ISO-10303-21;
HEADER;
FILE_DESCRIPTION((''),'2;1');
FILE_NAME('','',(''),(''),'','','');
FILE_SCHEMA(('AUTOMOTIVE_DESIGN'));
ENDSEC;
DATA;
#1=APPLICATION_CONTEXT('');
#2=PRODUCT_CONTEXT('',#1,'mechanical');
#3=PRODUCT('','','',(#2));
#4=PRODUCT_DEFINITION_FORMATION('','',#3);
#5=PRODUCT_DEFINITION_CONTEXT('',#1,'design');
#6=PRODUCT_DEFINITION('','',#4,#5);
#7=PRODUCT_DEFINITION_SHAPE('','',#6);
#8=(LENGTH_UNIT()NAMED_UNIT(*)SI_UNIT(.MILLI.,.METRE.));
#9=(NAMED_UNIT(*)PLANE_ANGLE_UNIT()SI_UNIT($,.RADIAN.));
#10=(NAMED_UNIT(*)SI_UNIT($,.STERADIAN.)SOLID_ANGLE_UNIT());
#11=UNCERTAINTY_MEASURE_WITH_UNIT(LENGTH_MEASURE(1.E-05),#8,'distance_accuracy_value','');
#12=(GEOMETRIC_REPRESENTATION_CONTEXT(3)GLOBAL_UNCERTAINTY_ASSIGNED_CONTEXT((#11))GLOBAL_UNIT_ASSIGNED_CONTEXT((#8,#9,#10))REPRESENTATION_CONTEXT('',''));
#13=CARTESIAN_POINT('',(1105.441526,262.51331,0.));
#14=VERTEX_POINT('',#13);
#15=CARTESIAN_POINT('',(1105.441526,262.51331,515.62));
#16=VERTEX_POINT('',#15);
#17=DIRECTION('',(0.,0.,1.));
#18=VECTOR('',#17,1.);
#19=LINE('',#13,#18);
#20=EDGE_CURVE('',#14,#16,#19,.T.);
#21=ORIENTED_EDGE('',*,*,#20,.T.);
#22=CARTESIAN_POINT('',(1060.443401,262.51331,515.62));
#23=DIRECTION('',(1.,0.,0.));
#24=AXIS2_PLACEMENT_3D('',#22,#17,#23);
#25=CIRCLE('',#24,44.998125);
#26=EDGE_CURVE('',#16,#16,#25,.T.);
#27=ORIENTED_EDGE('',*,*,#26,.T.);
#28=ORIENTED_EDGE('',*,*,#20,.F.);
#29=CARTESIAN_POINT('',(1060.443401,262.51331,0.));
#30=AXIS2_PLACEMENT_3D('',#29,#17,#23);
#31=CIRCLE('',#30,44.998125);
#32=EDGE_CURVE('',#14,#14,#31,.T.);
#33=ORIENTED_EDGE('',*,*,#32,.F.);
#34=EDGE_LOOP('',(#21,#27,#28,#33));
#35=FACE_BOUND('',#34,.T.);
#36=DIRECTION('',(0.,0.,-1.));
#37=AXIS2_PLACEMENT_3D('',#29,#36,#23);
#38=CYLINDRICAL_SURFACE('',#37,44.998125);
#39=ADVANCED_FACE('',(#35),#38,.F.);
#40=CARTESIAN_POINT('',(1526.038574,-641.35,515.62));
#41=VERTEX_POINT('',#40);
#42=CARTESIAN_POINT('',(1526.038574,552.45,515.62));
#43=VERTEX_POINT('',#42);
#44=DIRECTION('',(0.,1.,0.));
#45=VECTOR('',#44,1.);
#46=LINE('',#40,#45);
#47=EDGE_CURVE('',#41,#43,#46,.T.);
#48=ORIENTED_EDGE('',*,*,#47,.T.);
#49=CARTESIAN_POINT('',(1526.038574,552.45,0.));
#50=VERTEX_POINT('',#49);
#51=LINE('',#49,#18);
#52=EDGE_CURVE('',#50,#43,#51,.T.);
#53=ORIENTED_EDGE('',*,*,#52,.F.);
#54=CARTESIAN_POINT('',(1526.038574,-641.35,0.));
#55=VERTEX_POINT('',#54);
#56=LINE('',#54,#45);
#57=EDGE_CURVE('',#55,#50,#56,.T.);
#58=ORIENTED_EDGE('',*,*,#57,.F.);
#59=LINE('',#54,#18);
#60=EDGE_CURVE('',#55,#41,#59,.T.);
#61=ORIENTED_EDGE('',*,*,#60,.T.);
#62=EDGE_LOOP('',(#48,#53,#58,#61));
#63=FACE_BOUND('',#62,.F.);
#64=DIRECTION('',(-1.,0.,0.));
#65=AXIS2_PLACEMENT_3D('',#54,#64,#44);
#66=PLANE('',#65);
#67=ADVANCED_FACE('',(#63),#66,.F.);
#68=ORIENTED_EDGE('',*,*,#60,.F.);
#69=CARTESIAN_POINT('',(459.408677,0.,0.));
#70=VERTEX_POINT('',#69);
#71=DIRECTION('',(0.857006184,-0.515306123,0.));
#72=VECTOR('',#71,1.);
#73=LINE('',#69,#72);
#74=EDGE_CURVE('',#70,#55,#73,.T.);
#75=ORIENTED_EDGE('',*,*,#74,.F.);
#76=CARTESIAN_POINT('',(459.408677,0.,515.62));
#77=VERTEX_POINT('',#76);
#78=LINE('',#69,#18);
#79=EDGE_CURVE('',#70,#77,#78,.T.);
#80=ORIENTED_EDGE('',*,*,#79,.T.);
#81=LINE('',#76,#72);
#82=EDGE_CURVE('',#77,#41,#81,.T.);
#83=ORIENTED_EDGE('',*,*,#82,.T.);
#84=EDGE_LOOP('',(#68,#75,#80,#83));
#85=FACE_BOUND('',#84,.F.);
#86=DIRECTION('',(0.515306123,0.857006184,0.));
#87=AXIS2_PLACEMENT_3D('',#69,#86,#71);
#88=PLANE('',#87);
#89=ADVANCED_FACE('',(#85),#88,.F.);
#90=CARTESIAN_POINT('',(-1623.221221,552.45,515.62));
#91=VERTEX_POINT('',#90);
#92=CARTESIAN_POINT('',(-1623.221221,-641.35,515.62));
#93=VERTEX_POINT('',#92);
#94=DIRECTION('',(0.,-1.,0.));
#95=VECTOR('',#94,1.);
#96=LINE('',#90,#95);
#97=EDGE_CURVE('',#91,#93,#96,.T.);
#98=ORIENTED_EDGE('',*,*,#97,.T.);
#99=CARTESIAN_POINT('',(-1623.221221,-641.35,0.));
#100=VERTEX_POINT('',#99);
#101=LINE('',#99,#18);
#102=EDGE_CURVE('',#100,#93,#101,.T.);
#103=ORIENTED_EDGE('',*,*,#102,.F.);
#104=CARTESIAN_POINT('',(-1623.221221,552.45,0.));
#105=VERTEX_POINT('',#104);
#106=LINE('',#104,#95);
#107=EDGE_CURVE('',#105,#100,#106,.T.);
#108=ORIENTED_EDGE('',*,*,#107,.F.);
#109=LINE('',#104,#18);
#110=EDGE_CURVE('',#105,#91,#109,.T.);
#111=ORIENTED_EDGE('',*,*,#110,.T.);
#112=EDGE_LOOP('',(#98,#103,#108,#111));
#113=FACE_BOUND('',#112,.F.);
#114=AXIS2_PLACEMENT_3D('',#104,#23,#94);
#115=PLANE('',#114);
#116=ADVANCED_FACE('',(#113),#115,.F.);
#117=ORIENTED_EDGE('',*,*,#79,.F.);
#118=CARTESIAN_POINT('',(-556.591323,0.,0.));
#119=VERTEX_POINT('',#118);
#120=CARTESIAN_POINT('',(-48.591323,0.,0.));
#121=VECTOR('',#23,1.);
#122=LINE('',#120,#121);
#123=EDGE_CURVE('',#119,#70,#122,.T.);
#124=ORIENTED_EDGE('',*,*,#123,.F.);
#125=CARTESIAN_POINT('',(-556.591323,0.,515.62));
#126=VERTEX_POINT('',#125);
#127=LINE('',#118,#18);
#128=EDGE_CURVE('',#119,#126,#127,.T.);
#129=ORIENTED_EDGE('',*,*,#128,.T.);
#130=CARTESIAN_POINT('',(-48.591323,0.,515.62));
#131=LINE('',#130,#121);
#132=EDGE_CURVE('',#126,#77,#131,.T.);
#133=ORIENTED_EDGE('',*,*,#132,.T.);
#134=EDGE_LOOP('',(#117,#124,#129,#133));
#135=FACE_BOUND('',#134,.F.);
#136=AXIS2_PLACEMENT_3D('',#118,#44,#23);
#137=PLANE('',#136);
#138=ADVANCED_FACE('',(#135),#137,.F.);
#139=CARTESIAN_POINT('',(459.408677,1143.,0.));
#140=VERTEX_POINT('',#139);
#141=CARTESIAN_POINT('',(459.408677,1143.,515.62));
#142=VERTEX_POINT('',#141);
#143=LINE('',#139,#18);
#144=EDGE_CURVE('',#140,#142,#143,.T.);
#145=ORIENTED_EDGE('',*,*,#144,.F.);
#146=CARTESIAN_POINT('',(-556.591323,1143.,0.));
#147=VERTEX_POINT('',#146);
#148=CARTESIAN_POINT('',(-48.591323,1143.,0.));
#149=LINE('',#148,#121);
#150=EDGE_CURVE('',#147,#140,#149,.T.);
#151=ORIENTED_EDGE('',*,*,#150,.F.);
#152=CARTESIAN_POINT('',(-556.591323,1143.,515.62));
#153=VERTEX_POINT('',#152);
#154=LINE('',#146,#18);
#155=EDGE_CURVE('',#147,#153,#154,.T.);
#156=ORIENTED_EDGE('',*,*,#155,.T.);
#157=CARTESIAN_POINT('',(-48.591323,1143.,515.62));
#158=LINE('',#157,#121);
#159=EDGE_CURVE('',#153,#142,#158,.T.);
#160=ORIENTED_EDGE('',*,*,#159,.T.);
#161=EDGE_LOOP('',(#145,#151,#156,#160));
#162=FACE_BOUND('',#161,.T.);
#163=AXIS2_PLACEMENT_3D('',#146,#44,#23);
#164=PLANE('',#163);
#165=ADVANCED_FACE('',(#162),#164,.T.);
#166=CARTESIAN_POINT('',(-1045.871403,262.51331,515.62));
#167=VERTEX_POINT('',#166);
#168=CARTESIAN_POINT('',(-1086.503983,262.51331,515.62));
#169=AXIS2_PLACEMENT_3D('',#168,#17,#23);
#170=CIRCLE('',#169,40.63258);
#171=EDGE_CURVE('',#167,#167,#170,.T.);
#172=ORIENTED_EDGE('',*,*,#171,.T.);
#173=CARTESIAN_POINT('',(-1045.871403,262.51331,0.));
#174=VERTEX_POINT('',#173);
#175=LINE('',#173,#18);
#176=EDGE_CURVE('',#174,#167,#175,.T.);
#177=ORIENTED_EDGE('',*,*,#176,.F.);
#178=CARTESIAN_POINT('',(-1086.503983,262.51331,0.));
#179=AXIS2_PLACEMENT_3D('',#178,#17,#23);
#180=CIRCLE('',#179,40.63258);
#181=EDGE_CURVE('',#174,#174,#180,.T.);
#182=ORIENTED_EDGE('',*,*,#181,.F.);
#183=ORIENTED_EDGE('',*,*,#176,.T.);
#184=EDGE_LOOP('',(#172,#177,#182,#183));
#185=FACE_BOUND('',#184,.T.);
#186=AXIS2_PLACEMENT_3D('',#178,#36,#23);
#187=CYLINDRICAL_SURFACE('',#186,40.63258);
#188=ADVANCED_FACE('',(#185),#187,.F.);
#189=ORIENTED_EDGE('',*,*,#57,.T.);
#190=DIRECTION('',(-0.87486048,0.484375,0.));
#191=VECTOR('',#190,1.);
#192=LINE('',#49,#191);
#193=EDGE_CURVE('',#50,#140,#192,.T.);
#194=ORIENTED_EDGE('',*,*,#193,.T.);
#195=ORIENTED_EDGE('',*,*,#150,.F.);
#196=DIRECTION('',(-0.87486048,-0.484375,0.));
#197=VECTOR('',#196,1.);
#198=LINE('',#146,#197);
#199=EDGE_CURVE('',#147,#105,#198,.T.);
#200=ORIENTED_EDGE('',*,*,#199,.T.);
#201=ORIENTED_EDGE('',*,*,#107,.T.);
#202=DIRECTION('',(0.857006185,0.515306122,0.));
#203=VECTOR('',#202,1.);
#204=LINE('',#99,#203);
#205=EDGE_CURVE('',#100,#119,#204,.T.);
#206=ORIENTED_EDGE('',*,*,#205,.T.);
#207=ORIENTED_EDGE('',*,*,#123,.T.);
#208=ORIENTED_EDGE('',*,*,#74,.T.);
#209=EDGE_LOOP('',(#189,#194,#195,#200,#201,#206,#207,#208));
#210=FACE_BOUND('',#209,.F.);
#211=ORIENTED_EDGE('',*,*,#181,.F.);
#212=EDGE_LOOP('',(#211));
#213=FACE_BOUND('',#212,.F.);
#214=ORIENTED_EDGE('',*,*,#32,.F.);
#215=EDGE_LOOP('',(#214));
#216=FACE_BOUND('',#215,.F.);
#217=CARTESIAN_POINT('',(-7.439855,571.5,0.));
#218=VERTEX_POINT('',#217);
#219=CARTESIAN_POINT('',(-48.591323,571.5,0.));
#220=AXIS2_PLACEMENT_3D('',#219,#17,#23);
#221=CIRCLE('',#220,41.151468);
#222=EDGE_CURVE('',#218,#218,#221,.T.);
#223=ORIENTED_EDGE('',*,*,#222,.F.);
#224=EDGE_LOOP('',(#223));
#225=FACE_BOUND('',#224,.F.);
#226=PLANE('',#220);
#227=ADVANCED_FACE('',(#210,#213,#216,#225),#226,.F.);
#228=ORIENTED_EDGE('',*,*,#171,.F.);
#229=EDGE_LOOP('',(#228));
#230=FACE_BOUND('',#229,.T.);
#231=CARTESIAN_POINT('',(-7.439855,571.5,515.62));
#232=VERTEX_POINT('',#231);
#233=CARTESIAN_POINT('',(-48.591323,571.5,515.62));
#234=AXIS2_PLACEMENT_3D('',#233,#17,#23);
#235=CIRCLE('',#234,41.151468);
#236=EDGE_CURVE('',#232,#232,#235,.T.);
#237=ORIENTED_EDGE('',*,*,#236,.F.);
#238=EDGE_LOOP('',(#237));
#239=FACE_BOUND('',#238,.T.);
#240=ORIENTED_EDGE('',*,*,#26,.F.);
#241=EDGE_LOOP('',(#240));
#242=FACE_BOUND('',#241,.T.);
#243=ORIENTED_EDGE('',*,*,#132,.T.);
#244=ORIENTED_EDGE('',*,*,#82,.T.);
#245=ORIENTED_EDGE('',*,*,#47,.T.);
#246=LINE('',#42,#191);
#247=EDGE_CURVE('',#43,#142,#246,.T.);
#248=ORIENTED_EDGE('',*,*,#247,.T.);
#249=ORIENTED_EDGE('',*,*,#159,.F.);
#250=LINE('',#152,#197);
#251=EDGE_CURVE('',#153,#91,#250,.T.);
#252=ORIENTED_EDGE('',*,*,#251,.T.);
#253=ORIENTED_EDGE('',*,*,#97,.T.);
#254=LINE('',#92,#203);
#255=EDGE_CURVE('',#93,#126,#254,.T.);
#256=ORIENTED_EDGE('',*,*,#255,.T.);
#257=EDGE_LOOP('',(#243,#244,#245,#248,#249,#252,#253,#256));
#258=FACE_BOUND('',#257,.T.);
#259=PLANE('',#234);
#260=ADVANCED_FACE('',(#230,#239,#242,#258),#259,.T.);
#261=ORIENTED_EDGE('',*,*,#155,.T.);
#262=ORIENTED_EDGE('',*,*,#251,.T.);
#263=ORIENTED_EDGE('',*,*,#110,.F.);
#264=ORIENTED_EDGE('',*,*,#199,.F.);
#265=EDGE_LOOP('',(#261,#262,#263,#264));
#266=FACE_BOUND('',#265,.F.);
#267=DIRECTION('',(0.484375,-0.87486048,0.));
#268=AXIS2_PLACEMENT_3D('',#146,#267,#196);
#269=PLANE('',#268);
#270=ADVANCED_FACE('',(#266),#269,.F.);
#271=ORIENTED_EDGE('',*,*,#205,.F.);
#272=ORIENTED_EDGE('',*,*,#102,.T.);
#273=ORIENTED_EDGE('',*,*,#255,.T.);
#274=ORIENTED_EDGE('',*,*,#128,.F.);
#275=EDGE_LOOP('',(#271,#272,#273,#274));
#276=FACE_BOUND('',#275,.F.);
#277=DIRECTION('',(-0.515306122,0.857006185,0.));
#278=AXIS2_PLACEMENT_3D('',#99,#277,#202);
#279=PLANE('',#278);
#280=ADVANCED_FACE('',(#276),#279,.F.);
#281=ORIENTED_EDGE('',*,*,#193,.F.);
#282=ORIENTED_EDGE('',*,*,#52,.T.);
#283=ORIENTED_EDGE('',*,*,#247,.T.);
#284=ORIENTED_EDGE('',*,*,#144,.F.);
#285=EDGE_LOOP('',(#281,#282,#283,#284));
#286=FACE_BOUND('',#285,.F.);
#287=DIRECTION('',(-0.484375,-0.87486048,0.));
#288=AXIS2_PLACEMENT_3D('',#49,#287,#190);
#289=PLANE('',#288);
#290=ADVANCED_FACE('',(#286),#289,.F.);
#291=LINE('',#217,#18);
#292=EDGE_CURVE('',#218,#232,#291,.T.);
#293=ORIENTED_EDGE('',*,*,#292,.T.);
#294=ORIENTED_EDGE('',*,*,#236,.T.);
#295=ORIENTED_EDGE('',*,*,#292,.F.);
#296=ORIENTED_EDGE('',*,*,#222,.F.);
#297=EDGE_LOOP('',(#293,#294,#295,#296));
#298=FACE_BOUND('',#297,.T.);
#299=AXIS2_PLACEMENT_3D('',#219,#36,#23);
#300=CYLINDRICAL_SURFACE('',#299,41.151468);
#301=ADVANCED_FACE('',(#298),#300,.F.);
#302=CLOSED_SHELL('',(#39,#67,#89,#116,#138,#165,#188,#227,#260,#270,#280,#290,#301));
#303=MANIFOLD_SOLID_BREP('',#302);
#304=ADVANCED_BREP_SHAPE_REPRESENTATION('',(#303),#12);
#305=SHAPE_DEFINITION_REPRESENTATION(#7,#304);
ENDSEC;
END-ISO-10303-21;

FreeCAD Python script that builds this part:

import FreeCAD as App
import Part
import Sketcher
Q = App.Units.Quantity

doc = App.newDocument("Part")
body = doc.addObject("PartDesign::Body", "Body")

# Sketch on XY plane
sketch1 = doc.addObject("Sketcher::SketchObject", "Sketch")
body.addObject(sketch1)
sketch1.AttachmentSupport = (doc.XY_Plane, [""])
sketch1.MapMode = "FlatFace"
sketch1.addGeometry(Part.LineSegment(App.Vector(-557, 0, 0), App.Vector(459, 0, 0)), False)
sketch1.addGeometry(Part.LineSegment(App.Vector(459, 0, 0), App.Vector(1526, -641, 0)), False)
sketch1.addGeometry(Part.LineSegment(App.Vector(1526, -641, 0), App.Vector(1526, 552, 0)), False)
sketch1.addGeometry(Part.LineSegment(App.Vector(1526, 552, 0), App.Vector(459, 1143, 0)), False)
sketch1.addGeometry(Part.LineSegment(App.Vector(459, 1143, 0), App.Vector(-557, 1143, 0)), False)
sketch1.addGeometry(Part.LineSegment(App.Vector(-557, 1143, 0), App.Vector(-1623, 552, 0)), False)
sketch1.addGeometry(Part.LineSegment(App.Vector(-1623, 552, 0), App.Vector(-1623, -641, 0)), False)
sketch1.addGeometry(Part.LineSegment(App.Vector(-1623, -641, 0), App.Vector(-557, 0, 0)), False)
sketch1.addGeometry(Part.Circle(App.Vector(-1087, 263, 0), App.Vector(0, 0, 1), 41), False)
sketch1.addGeometry(Part.Circle(App.Vector(1060, 263, 0), App.Vector(0, 0, 1), 45), False)
sketch1.addGeometry(Part.Circle(App.Vector(-49, 572, 0), App.Vector(0, 0, 1), 41), False)
sketch1.addConstraint(Sketcher.Constraint("Coincident", 0, 2, 1, 1))
sketch1.addConstraint(Sketcher.Constraint("Coincident", 1, 2, 2, 1))
sketch1.addConstraint(Sketcher.Constraint("Coincident", 2, 2, 3, 1))
sketch1.addConstraint(Sketcher.Constraint("Coincident", 3, 2, 4, 1))
sketch1.addConstraint(Sketcher.Constraint("Coincident", 4, 2, 5, 1))
sketch1.addConstraint(Sketcher.Constraint("Coincident", 5, 2, 6, 1))
sketch1.addConstraint(Sketcher.Constraint("Coincident", 6, 2, 7, 1))
sketch1.addConstraint(Sketcher.Constraint("Coincident", 7, 2, 0, 1))
sketch1.addConstraint(Sketcher.Constraint("Horizontal", 0))
sketch1.addConstraint(Sketcher.Constraint("Vertical", 2))
sketch1.addConstraint(Sketcher.Constraint("Horizontal", 4))
sketch1.addConstraint(Sketcher.Constraint("Vertical", 6))
sketch1.addConstraint(Sketcher.Constraint("PointOnObject", 0, 2, -1))
sketch1.addConstraint(Sketcher.Constraint("Horizontal", 8, 3, 9, 3))
sketch1.addConstraint(Sketcher.Constraint("Horizontal", 2, 2, 5, 2))
sketch1.addConstraint(Sketcher.Constraint("Horizontal", 1, 2, 6, 2))
sketch1.addConstraint(Sketcher.Constraint("Vertical", 0, 2, 3, 2))
sketch1.addConstraint(Sketcher.Constraint("Vertical", 4, 2, 7, 2))
sketch1.addConstraint(Sketcher.Constraint("Equal", 3, 5))
sketch1.addConstraint(Sketcher.Constraint("DistanceX", 0, 1, 0, 2, Q("40 in")))
sketch1.addConstraint(Sketcher.Constraint("DistanceY", 2, 1, 2, 2, Q("47 in")))
sketch1.addConstraint(Sketcher.Constraint("Distance", 1, Q("49 in")))
sketch1.addConstraint(Sketcher.Constraint("Distance", 3, Q("48 in")))
sketch1.addConstraint(Sketcher.Constraint("DistanceY", -1, 1, 3, 2, Q("45 in")))
sketch1.addConstraint(Sketcher.Constraint("DistanceX", 10, 3, 0, 2, Q("20 in")))
sketch1.addConstraint(Sketcher.Constraint("DistanceY", -1, 1, 10, 3, Q("22.5 in")))
sketch1.addConstraint(Sketcher.Constraint("Diameter", 8, 81.26516))
sketch1.addConstraint(Sketcher.Constraint("Diameter", 9, 89.99625))
sketch1.addConstraint(Sketcher.Constraint("Diameter", 10, 82.302936))
sketch1.addConstraint(Sketcher.Constraint("DistanceX", 5, 2, 8, 3, Q("21.1305999 in")))
sketch1.addConstraint(Sketcher.Constraint("DistanceX", -1, 1, 9, 3, 1060.443401))
sketch1.addConstraint(Sketcher.Constraint("DistanceY", -1, 1, 8, 3, 262.51331))
sketch1.addConstraint(Sketcher.Constraint("DistanceX", 5, 2, -1, 1, 1623.221221))
pad1 = doc.addObject("PartDesign::Pad", "Pad")
body.addObject(pad1)
pad1.Profile = sketch1
pad1.Length = Q("20.3 in")

doc.recompute()
